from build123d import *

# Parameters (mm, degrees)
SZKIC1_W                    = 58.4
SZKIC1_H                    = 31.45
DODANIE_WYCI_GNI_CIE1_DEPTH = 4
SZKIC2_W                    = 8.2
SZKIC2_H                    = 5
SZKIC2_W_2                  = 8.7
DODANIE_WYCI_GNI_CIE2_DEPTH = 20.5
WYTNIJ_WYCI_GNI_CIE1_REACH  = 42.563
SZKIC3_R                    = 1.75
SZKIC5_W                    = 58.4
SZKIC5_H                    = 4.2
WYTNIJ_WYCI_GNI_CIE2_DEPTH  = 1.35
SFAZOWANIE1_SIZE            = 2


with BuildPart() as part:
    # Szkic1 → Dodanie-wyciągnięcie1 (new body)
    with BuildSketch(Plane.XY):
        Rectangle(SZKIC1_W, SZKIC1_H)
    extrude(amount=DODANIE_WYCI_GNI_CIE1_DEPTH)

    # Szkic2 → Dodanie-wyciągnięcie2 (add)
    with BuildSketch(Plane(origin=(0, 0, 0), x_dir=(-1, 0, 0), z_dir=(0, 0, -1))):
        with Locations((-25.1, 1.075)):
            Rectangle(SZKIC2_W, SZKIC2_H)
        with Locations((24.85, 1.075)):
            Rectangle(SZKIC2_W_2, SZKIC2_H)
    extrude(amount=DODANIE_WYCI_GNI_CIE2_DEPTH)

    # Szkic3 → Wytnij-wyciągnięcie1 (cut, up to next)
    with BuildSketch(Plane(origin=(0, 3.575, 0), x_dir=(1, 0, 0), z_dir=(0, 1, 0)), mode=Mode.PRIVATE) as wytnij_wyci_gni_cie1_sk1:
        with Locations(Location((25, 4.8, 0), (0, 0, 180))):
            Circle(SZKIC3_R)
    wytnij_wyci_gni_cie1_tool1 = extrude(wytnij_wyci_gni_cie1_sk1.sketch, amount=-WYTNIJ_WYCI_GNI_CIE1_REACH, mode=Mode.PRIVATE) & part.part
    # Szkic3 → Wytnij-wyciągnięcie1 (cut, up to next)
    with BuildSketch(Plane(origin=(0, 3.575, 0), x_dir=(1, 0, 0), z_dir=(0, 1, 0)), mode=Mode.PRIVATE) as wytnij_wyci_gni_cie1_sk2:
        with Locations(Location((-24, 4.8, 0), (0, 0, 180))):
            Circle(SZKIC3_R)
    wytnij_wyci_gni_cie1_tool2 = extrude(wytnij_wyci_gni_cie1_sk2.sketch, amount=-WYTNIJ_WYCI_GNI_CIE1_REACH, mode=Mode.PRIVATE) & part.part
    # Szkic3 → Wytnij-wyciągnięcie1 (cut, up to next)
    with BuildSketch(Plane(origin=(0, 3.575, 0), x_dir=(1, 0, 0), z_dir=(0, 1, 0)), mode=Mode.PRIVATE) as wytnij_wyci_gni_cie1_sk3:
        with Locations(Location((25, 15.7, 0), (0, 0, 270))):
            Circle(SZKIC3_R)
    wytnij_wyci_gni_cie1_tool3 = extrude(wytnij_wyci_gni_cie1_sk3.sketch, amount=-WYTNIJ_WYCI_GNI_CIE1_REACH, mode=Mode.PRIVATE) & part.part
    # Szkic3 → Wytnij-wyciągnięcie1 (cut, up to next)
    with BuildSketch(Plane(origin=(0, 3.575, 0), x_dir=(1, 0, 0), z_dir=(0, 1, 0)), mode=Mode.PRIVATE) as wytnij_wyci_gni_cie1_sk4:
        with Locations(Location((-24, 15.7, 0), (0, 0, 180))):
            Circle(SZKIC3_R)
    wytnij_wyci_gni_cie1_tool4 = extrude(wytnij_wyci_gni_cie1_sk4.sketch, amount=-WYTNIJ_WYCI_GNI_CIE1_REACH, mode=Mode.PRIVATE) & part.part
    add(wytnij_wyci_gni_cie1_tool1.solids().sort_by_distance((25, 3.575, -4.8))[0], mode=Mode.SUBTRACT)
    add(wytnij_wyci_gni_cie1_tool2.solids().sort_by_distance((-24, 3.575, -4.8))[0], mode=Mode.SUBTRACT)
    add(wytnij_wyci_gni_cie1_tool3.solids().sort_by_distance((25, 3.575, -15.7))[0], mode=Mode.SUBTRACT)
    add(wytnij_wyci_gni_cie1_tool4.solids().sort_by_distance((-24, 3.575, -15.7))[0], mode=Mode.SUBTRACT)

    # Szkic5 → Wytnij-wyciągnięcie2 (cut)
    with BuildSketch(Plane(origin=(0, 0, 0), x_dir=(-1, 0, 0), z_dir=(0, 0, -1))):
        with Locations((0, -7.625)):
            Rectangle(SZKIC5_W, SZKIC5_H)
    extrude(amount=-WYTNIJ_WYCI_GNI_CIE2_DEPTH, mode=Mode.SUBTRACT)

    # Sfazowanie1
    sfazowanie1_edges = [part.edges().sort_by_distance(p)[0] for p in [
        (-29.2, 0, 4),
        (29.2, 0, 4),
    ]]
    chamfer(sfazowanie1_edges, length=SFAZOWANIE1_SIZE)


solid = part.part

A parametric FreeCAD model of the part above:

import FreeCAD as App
import Part
import Sketcher


def edges_at(feature, points):
    """Names of the edges that pass closest to the given points."""
    edges = feature.Shape.Edges
    near = lambda p: min(range(len(edges)), key=lambda i: edges[i].distToShape(Part.Vertex(*p))[0])
    return sorted({f"Edge{near(p) + 1}" for p in points})

doc = App.newDocument("Part")
body = doc.addObject("PartDesign::Body", "Body")

# Sketch on XY plane
sketch1 = body.newObject("Sketcher::SketchObject", "Sketch")
sketch1.AttachmentSupport = (doc.getObject("XY_Plane"), [""])
sketch1.MapMode = "FlatFace"
sketch1.addGeometry(Part.LineSegment(App.Vector(-29, 16, 0), App.Vector(-29, -16, 0)), False)
sketch1.addGeometry(Part.LineSegment(App.Vector(-29, -16, 0), App.Vector(29, -16, 0)), False)
sketch1.addGeometry(Part.LineSegment(App.Vector(29, -16, 0), App.Vector(29, 16, 0)), False)
sketch1.addGeometry(Part.LineSegment(App.Vector(29, 16, 0), App.Vector(-29, 16, 0)), False)
sketch1.addConstraint(Sketcher.Constraint("Coincident", 0, 2, 1, 1))
sketch1.addConstraint(Sketcher.Constraint("Coincident", 1, 2, 2, 1))
sketch1.addConstraint(Sketcher.Constraint("Coincident", 2, 2, 3, 1))
sketch1.addConstraint(Sketcher.Constraint("Coincident", 3, 2, 0, 1))
sketch1.addConstraint(Sketcher.Constraint("Vertical", 0))
sketch1.addConstraint(Sketcher.Constraint("Horizontal", 1))
sketch1.addConstraint(Sketcher.Constraint("Vertical", 2))
sketch1.addConstraint(Sketcher.Constraint("Horizontal", 3))
sketch1.addConstraint(Sketcher.Constraint("Symmetric", 0, 2, 2, 2, -1, 1))
sketch1.addConstraint(Sketcher.Constraint("DistanceX", 1, 1, 1, 2, 58.4))
sketch1.addConstraint(Sketcher.Constraint("DistanceY", 0, 2, 0, 1, 31.45))
pad1 = body.newObject("PartDesign::Pad", "Pad")
pad1.Profile = sketch1
pad1.Length = 4

# Sketch on XY plane
sketch2 = body.newObject("Sketcher::SketchObject", "Sketch001")
sketch2.AttachmentSupport = (doc.getObject("XY_Plane"), [""])
sketch2.MapMode = "FlatFace"
sketch2.addGeometry(Part.LineSegment(App.Vector(29, 4, 0), App.Vector(29, -1, 0)), False)
sketch2.addGeometry(Part.LineSegment(App.Vector(29, -1, 0), App.Vector(21, -1, 0)), False)
sketch2.addGeometry(Part.LineSegment(App.Vector(21, -1, 0), App.Vector(21, 4, 0)), False)
sketch2.addGeometry(Part.LineSegment(App.Vector(21, 4, 0), App.Vector(29, 4, 0)), False)
sketch2.addGeometry(Part.LineSegment(App.Vector(-20, 4, 0), App.Vector(-20, -1, 0)), False)
sketch2.addGeometry(Part.LineSegment(App.Vector(-20, -1, 0), App.Vector(-29, -1, 0)), False)
sketch2.addGeometry(Part.LineSegment(App.Vector(-29, -1, 0), App.Vector(-29, 4, 0)), False)
sketch2.addGeometry(Part.LineSegment(App.Vector(-29, 4, 0), App.Vector(-20, 4, 0)), False)
sketch2.addConstraint(Sketcher.Constraint("Coincident", 0, 2, 1, 1))
sketch2.addConstraint(Sketcher.Constraint("Coincident", 1, 2, 2, 1))
sketch2.addConstraint(Sketcher.Constraint("Coincident", 2, 2, 3, 1))
sketch2.addConstraint(Sketcher.Constraint("Coincident", 3, 2, 0, 1))
sketch2.addConstraint(Sketcher.Constraint("Coincident", 4, 2, 5, 1))
sketch2.addConstraint(Sketcher.Constraint("Coincident", 5, 2, 6, 1))
sketch2.addConstraint(Sketcher.Constraint("Coincident", 6, 2, 7, 1))
sketch2.addConstraint(Sketcher.Constraint("Coincident", 7, 2, 4, 1))
sketch2.addConstraint(Sketcher.Constraint("Vertical", 0))
sketch2.addConstraint(Sketcher.Constraint("Horizontal", 1))
sketch2.addConstraint(Sketcher.Constraint("Vertical", 2))
sketch2.addConstraint(Sketcher.Constraint("Horizontal", 3))
sketch2.addConstraint(Sketcher.Constraint("Vertical", 4))
sketch2.addConstraint(Sketcher.Constraint("Horizontal", 5))
sketch2.addConstraint(Sketcher.Constraint("Vertical", 6))
sketch2.addConstraint(Sketcher.Constraint("Horizontal", 7))
sketch2.addConstraint(Sketcher.Constraint("Symmetric", 0, 2, 5, 2, -2))
sketch2.addConstraint(Sketcher.Constraint("Horizontal", 3, 2, 6, 2))
sketch2.addConstraint(Sketcher.Constraint("DistanceY", 0, 2, 0, 1, 5.0))
sketch2.addConstraint(Sketcher.Constraint("DistanceX", 1, 2, 1, 1, 8.2))
sketch2.addConstraint(Sketcher.Constraint("DistanceX", 5, 2, 5, 1, 8.7))
sketch2.addConstraint(Sketcher.Constraint("DistanceX", -1, 1, 1, 2, 21.0))
sketch2.addConstraint(Sketcher.Constraint("DistanceY", 0, 2, -1, 1, 1.425))
pad2 = body.newObject("PartDesign::Pad", "Pad001")
pad2.Profile = sketch2
pad2.Length = 20.5
pad2.Reversed = True

# Sketch on XZ plane
sketch3 = body.newObject("Sketcher::SketchObject", "Sketch002")
sketch3.AttachmentSupport = (doc.getObject("XZ_Plane"), [""])
sketch3.MapMode = "FlatFace"
sketch3.AttachmentOffset = App.Placement(App.Vector(0, 0, -3.575), App.Rotation())
sketch3.addGeometry(Part.Circle(App.Vector(25, -4.8, 0), App.Vector(0, 0, 1), 1.8), False)
sketch3.addConstraint(Sketcher.Constraint("Diameter", 0, 3.5))
sketch3.addConstraint(Sketcher.Constraint("DistanceX", -1, 1, 0, 3, 25.0))
sketch3.addConstraint(Sketcher.Constraint("DistanceY", 0, 3, -1, 1, 4.8))
pocket1 = body.newObject("PartDesign::Pocket", "Pocket")
pocket1.Profile = sketch3
pocket1.Type = "UpToFirst"
pocket1.Reversed = True

# Sketch on XZ plane
sketch4 = body.newObject("Sketcher::SketchObject", "Sketch003")
sketch4.AttachmentSupport = (doc.getObject("XZ_Plane"), [""])
sketch4.MapMode = "FlatFace"
sketch4.AttachmentOffset = App.Placement(App.Vector(0, 0, -3.575), App.Rotation())
sketch4.addGeometry(Part.Circle(App.Vector(-24, -4.8, 0), App.Vector(0, 0, 1), 1.8), False)
sketch4.addConstraint(Sketcher.Constraint("Diameter", 0, 3.5))
sketch4.addConstraint(Sketcher.Constraint("DistanceX", 0, 3, -1, 1, 24.0))
sketch4.addConstraint(Sketcher.Constraint("DistanceY", 0, 3, -1, 1, 4.8))
pocket2 = body.newObject("PartDesign::Pocket", "Pocket001")
pocket2.Profile = sketch4
pocket2.Type = "UpToFirst"
pocket2.Reversed = True

# Sketch on XZ plane
sketch5 = body.newObject("Sketcher::SketchObject", "Sketch004")
sketch5.AttachmentSupport = (doc.getObject("XZ_Plane"), [""])
sketch5.MapMode = "FlatFace"
sketch5.AttachmentOffset = App.Placement(App.Vector(0, 0, -3.575), App.Rotation())
sketch5.addGeometry(Part.Circle(App.Vector(25, -15.7, 0), App.Vector(0, 0, 1), 1.8), False)
sketch5.addConstraint(Sketcher.Constraint("Diameter", 0, 3.5))
sketch5.addConstraint(Sketcher.Constraint("DistanceX", -1, 1, 0, 3, 25.0))
sketch5.addConstraint(Sketcher.Constraint("DistanceY", 0, 3, -1, 1, 15.7))
pocket3 = body.newObject("PartDesign::Pocket", "Pocket002")
pocket3.Profile = sketch5
pocket3.Type = "UpToFirst"
pocket3.Reversed = True

# Sketch on XZ plane
sketch6 = body.newObject("Sketcher::SketchObject", "Sketch005")
sketch6.AttachmentSupport = (doc.getObject("XZ_Plane"), [""])
sketch6.MapMode = "FlatFace"
sketch6.AttachmentOffset = App.Placement(App.Vector(0, 0, -3.575), App.Rotation())
sketch6.addGeometry(Part.Circle(App.Vector(-24, -15.7, 0), App.Vector(0, 0, 1), 1.8), False)
sketch6.addConstraint(Sketcher.Constraint("Diameter", 0, 3.5))
sketch6.addConstraint(Sketcher.Constraint("DistanceX", 0, 3, -1, 1, 24.0))
sketch6.addConstraint(Sketcher.Constraint("DistanceY", 0, 3, -1, 1, 15.7))
pocket4 = body.newObject("PartDesign::Pocket", "Pocket003")
pocket4.Profile = sketch6
pocket4.Type = "UpToFirst"
pocket4.Reversed = True

# Sketch on XY plane
sketch7 = body.newObject("Sketcher::SketchObject", "Sketch006")
sketch7.AttachmentSupport = (doc.getObject("XY_Plane"), [""])
sketch7.MapMode = "FlatFace"
sketch7.addGeometry(Part.LineSegment(App.Vector(29.2, -5.5, 0), App.Vector(29.2, -9.7, 0)), False)
sketch7.addGeometry(Part.LineSegment(App.Vector(29.2, -9.7, 0), App.Vector(-29.2, -9.7, 0)), False)
sketch7.addGeometry(Part.LineSegment(App.Vector(-29.2, -9.7, 0), App.Vector(-29.2, -5.5, 0)), False)
sketch7.addGeometry(Part.LineSegment(App.Vector(-29.2, -5.5, 0), App.Vector(29.2, -5.5, 0)), False)
sketch7.addConstraint(Sketcher.Constraint("Coincident", 0, 2, 1, 1))
sketch7.addConstraint(Sketcher.Constraint("Coincident", 1, 2, 2, 1))
sketch7.addConstraint(Sketcher.Constraint("Coincident", 2, 2, 3, 1))
sketch7.addConstraint(Sketcher.Constraint("Coincident", 3, 2, 0, 1))
sketch7.addConstraint(Sketcher.Constraint("Vertical", 0))
sketch7.addConstraint(Sketcher.Constraint("Horizontal", 1))
sketch7.addConstraint(Sketcher.Constraint("Vertical", 2))
sketch7.addConstraint(Sketcher.Constraint("Horizontal", 3))
sketch7.addConstraint(Sketcher.Constraint("DistanceX", 1, 2, 1, 1, 58.4))
sketch7.addConstraint(Sketcher.Constraint("DistanceY", 0, 2, 0, 1, 4.2))
sketch7.addConstraint(Sketcher.Constraint("DistanceX", -1, 1, 0, 2, 29.2))
sketch7.addConstraint(Sketcher.Constraint("DistanceY", 0, 2, -1, 1, 9.725))
pocket5 = body.newObject("PartDesign::Pocket", "Pocket004")
pocket5.Profile = sketch7
pocket5.Length = 1.35
pocket5.Reversed = True
doc.recompute()

chamfer = body.newObject("PartDesign::Chamfer", "Chamfer")
chamfer.Base = (pocket5, edges_at(pocket5, [(-29.2, 0, 4), (29.2, 0, 4)]))
chamfer.Size = 2

doc.recompute()
